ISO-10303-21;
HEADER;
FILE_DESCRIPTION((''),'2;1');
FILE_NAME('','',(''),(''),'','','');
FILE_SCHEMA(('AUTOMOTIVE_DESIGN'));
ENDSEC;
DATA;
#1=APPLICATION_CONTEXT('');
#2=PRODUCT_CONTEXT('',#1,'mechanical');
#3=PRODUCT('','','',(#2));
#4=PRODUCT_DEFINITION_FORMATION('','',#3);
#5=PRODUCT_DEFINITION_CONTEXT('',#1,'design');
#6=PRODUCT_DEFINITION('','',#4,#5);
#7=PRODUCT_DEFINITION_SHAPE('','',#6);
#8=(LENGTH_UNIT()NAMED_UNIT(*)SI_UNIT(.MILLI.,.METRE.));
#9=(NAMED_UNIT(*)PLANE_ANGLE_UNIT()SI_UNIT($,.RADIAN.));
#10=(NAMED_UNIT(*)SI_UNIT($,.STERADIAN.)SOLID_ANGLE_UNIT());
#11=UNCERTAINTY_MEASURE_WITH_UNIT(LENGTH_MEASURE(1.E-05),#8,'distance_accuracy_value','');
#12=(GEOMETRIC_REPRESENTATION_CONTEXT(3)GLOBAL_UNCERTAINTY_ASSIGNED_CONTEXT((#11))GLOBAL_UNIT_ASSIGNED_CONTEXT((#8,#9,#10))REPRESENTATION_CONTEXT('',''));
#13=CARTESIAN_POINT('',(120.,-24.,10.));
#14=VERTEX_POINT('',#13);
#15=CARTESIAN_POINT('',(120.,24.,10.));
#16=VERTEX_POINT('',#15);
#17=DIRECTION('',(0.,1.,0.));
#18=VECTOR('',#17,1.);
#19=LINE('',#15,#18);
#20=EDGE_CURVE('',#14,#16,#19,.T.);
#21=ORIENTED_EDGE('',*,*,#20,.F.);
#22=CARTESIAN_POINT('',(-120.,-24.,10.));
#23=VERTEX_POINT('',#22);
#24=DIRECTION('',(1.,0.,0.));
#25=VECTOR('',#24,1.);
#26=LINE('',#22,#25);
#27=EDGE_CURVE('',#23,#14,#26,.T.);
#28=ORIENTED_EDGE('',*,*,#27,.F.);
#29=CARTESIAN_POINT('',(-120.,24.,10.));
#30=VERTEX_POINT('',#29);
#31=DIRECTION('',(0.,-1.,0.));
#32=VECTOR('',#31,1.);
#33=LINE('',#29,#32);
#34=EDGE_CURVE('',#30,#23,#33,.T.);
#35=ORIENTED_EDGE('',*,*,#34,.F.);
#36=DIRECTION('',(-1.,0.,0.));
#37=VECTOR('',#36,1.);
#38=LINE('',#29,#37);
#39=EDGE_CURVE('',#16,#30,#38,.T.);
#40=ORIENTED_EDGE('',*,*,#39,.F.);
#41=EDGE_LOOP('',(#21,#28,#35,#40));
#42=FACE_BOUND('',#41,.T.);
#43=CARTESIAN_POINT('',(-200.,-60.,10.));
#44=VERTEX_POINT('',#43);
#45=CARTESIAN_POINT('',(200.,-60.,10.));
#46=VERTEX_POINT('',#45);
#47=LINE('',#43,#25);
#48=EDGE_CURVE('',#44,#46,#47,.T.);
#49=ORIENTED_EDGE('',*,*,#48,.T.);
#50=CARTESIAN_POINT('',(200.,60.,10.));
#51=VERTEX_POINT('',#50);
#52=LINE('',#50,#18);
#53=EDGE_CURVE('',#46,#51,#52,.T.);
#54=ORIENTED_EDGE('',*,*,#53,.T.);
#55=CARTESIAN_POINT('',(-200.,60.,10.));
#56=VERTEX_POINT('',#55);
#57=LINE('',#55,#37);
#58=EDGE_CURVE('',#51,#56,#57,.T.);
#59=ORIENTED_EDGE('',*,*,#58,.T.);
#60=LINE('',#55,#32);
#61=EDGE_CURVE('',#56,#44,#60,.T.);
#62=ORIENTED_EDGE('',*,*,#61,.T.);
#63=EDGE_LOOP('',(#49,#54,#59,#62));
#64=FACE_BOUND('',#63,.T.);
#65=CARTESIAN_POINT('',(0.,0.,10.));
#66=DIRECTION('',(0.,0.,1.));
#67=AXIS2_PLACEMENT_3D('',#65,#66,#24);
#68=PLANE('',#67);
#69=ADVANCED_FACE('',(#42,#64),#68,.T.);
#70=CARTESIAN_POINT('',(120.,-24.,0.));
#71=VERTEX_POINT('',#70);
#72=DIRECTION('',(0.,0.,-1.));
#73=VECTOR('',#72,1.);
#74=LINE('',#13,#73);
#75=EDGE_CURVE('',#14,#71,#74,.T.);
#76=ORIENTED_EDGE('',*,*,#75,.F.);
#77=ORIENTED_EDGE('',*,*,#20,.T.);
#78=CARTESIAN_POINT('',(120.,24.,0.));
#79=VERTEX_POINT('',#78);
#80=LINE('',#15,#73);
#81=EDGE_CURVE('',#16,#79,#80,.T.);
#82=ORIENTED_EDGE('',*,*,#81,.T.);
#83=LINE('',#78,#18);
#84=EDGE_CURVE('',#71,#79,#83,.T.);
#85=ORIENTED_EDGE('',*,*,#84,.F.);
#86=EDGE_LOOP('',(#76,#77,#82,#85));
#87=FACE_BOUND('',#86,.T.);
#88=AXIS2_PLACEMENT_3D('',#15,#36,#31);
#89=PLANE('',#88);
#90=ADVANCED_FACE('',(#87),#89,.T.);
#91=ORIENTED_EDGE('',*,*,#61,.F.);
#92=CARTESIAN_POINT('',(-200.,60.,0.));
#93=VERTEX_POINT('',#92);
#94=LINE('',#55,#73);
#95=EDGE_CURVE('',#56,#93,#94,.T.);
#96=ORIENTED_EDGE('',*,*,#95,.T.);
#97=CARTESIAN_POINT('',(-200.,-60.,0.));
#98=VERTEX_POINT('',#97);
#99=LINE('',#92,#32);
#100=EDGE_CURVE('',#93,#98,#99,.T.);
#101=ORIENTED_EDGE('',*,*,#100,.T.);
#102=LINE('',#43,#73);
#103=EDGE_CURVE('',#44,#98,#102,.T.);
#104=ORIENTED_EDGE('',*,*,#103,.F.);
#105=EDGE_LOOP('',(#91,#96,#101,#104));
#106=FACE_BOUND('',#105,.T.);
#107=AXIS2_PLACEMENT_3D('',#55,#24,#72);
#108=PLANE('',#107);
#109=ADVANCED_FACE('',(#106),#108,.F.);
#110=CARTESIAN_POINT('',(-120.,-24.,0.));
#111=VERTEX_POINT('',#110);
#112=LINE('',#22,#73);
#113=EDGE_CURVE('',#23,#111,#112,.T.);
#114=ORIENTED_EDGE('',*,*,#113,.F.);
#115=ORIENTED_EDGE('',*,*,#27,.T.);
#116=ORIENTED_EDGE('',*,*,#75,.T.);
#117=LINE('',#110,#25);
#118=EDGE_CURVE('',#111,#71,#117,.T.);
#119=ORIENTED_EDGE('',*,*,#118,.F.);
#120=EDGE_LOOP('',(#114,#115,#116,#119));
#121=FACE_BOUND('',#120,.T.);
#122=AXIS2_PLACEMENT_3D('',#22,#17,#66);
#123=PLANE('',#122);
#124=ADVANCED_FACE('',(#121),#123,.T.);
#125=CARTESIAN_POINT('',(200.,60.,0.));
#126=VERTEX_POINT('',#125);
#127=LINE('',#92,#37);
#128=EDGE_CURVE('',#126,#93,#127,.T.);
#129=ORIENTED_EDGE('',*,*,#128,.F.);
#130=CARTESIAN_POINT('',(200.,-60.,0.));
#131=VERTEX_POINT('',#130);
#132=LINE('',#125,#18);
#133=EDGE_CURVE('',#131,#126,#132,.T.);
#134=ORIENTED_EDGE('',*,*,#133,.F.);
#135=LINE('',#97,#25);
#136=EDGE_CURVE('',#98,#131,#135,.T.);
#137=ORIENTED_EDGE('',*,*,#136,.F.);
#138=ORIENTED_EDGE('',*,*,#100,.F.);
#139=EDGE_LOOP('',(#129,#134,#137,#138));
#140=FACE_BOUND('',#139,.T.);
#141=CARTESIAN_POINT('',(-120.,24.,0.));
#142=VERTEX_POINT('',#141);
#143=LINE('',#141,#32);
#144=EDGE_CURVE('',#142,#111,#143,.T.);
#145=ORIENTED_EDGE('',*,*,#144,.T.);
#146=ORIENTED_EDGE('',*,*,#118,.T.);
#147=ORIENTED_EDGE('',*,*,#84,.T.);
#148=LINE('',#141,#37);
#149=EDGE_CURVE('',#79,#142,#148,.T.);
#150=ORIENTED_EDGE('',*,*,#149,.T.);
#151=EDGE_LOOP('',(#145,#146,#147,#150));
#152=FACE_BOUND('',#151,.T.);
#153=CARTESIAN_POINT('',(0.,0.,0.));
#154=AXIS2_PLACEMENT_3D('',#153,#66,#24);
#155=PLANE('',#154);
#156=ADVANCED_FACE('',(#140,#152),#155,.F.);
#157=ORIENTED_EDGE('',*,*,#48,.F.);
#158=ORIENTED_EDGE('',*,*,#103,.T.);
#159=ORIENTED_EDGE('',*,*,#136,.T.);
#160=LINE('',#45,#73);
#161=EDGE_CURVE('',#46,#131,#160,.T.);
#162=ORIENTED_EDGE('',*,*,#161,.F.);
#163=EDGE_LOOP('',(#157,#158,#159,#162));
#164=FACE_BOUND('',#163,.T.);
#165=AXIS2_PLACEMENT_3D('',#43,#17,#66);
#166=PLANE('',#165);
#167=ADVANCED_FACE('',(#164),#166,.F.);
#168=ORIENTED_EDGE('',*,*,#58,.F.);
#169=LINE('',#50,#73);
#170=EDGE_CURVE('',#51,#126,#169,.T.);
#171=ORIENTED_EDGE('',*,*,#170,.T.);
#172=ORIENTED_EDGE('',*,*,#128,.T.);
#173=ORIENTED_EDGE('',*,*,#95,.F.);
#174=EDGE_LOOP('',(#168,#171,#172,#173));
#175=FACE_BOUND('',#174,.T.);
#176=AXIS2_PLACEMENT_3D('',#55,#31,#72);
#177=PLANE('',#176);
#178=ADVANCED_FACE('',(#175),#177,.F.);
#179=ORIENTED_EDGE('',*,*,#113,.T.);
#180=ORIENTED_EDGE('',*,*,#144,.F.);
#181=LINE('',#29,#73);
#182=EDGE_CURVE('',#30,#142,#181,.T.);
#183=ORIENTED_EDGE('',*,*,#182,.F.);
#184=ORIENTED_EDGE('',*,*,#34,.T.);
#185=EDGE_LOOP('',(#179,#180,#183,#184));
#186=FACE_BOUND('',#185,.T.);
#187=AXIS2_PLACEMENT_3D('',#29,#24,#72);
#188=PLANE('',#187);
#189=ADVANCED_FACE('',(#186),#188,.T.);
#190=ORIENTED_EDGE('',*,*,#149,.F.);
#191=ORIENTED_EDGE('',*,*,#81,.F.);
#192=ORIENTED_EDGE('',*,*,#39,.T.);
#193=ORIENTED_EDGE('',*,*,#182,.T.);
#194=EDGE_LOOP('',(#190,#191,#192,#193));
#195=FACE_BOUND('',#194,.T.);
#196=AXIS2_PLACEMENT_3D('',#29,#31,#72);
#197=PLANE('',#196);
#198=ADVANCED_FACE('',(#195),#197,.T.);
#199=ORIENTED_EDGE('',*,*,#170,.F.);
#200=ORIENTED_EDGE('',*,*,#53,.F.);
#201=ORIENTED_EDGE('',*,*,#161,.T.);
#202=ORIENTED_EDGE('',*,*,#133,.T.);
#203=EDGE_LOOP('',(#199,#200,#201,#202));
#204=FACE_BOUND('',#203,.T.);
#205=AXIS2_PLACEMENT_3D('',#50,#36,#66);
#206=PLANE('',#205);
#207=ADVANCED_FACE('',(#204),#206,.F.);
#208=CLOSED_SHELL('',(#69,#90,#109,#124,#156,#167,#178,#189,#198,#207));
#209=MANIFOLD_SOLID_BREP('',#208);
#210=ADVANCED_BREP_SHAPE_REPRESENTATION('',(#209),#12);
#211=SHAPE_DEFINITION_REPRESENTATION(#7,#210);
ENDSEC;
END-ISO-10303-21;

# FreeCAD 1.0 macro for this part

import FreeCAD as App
import Part
import Sketcher
Q = App.Units.Quantity


def add_polygon(sketch, points):
    """Adds a closed chain of lines whose ends are joined by coincident constraints."""
    first, n = sketch.GeometryCount, len(points)
    for a, b in zip(points, points[1:] + points[:1]):
        sketch.addGeometry(Part.LineSegment(App.Vector(*a, 0), App.Vector(*b, 0)), False)
    for i in range(n):
        sketch.addConstraint(Sketcher.Constraint("Coincident", first + i, 2, first + (i + 1) % n, 1))

doc = App.newDocument("Part")
body = doc.addObject("PartDesign::Body", "Body")

sketch1 = body.newObject("Sketcher::SketchObject", "Sketch")
sketch1.AttachmentSupport = (doc.getObject("XY_Plane"), [""])
sketch1.MapMode = "FlatFace"
add_polygon(sketch1, [(-200, 60), (-200, -60), (200, -60), (200, 60)])
add_polygon(sketch1, [(120, -24), (-120, -24), (-120, 24), (120, 24)])
sketch1.addConstraint(Sketcher.Constraint("Vertical", 0))
sketch1.addConstraint(Sketcher.Constraint("Horizontal", 1))
sketch1.addConstraint(Sketcher.Constraint("Vertical", 2))
sketch1.addConstraint(Sketcher.Constraint("Horizontal", 3))
sketch1.addConstraint(Sketcher.Constraint("Horizontal", 4))
sketch1.addConstraint(Sketcher.Constraint("Vertical", 5))
sketch1.addConstraint(Sketcher.Constraint("Horizontal", 6))
sketch1.addConstraint(Sketcher.Constraint("Vertical", 7))
sketch1.addConstraint(Sketcher.Constraint("Symmetric", 0, 2, 2, 2, -1, 1))
sketch1.addConstraint(Sketcher.Constraint("Symmetric", 4, 2, 6, 2, -1, 1))
sketch1.addConstraint(Sketcher.Constraint("DistanceX", 1, 1, 1, 2, Q("400 mm")))
sketch1.addConstraint(Sketcher.Constraint("DistanceX", 4, 2, 4, 1, Q("240 mm")))
sketch1.addConstraint(Sketcher.Constraint("DistanceY", 0, 2, 0, 1, Q("120 mm")))
sketch1.addConstraint(Sketcher.Constraint("DistanceY", 5, 1, 5, 2, Q("48 mm")))
pad1 = body.newObject("PartDesign::Pad", "Pad")
pad1.Profile = sketch1
pad1.Length = 10

doc.recompute()
